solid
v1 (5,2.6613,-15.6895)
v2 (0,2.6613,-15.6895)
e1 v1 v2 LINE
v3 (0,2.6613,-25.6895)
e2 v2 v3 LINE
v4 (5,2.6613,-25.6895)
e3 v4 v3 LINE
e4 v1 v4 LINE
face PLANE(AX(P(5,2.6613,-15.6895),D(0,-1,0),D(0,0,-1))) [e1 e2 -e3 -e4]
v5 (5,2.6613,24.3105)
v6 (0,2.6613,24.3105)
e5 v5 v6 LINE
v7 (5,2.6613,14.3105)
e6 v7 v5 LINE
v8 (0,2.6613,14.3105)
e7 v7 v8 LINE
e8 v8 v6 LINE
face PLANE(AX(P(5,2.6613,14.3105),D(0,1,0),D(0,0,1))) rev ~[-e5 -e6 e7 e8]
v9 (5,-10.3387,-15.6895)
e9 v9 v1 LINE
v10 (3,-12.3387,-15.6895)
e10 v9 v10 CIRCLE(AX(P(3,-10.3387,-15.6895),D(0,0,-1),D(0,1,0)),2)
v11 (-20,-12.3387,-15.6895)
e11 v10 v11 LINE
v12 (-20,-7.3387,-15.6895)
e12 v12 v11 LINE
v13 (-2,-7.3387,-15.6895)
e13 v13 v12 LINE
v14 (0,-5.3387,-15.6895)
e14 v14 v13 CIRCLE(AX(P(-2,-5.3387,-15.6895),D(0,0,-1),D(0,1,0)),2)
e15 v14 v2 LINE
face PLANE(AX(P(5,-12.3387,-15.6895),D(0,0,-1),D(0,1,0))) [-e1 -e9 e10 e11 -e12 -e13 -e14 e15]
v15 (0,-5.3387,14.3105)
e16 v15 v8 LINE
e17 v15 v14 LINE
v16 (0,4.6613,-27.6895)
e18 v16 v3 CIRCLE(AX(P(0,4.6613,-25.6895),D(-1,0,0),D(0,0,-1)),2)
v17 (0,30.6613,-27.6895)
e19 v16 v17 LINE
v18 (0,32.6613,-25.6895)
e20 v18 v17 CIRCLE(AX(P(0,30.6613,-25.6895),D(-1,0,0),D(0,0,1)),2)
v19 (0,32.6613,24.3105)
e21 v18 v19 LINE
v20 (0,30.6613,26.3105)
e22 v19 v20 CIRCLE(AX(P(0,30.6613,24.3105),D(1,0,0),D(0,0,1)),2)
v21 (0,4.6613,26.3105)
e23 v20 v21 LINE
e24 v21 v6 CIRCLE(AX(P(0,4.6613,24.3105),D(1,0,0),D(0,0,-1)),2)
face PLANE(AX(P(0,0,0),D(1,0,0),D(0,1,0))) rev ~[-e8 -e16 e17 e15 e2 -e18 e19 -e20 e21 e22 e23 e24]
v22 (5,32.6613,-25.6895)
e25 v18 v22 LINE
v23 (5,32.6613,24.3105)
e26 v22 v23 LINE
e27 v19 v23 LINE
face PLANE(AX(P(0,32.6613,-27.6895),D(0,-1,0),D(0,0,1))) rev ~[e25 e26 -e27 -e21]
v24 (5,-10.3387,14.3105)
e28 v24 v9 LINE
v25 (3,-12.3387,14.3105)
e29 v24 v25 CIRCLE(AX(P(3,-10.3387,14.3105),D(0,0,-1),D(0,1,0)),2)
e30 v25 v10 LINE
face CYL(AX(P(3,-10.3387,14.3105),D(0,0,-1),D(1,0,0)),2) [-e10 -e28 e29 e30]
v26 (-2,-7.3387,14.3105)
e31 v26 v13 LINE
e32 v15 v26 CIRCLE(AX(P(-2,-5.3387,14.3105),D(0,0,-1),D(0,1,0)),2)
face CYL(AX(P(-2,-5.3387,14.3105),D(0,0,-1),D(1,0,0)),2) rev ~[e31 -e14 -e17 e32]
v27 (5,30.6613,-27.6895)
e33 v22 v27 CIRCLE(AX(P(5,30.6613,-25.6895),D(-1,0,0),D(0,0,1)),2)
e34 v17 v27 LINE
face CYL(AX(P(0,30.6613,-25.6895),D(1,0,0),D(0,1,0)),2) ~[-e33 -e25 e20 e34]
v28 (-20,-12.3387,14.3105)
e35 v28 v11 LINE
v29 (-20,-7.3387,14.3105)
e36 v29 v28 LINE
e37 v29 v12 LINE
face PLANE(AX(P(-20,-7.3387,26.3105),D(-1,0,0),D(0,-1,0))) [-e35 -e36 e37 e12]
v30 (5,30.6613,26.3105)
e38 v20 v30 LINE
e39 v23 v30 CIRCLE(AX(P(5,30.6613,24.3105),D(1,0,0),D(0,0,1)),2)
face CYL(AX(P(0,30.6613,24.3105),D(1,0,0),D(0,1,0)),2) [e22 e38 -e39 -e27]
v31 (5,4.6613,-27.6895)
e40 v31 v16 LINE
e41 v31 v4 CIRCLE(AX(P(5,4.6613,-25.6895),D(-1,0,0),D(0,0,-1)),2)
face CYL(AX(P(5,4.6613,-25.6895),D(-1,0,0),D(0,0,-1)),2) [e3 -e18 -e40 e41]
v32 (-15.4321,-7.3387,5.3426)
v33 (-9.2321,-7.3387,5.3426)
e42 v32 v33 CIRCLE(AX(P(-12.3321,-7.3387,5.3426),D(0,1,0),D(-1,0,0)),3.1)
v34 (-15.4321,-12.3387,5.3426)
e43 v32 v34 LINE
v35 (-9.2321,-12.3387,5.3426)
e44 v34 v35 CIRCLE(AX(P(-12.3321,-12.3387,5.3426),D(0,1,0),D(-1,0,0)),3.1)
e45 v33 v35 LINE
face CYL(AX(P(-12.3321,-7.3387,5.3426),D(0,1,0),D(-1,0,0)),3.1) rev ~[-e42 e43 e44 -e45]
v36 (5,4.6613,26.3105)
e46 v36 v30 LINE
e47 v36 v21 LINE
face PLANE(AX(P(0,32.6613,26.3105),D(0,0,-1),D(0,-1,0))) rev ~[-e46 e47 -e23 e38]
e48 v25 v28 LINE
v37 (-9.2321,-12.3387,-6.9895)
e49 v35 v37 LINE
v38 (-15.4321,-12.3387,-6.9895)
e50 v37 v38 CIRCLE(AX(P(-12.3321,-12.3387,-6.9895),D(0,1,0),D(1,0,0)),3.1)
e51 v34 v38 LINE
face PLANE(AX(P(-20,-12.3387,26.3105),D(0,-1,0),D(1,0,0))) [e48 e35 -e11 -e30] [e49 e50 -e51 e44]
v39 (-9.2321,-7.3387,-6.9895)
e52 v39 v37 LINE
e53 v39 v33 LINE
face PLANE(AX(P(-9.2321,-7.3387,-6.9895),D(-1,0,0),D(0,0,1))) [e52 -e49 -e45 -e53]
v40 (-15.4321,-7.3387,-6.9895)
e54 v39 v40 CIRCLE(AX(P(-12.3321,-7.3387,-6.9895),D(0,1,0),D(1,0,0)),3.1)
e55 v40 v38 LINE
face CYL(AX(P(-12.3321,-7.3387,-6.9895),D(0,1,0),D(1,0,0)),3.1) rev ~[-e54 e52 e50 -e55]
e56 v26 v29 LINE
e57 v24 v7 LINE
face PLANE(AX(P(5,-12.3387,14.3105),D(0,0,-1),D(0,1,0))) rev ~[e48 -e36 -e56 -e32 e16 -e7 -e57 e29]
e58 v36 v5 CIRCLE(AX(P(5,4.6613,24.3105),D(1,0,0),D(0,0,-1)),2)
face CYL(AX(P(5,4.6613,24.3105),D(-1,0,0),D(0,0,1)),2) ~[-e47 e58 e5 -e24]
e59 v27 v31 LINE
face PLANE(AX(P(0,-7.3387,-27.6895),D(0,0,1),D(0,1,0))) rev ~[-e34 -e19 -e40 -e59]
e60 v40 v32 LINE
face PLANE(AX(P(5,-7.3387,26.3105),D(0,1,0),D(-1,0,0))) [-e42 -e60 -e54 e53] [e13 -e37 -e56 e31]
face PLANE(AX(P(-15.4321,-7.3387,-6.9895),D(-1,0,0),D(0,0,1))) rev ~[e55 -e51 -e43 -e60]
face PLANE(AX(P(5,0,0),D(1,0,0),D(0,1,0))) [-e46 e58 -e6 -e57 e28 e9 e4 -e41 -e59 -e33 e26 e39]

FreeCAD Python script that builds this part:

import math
import FreeCAD as App
import Part
import Sketcher
Q = App.Units.Quantity


def edges_at(feature, points):
    """Names of the edges that pass closest to the given points."""
    edges = feature.Shape.Edges
    near = lambda p: min(range(len(edges)), key=lambda i: edges[i].distToShape(Part.Vertex(*p))[0])
    return sorted({f"Edge{near(p) + 1}" for p in points})

doc = App.newDocument("Part")
body = doc.addObject("PartDesign::Body", "Body")

# Sketch on YZ plane
sketch1 = doc.addObject("Sketcher::SketchObject", "Sketch")
body.addObject(sketch1)
sketch1.AttachmentSupport = (doc.YZ_Plane, [""])
sketch1.MapMode = "FlatFace"
sketch1.addGeometry(Part.LineSegment(App.Vector(32.6613, -27.6895, 0), App.Vector(32.6613, 26.3105, 0)), False)
sketch1.addGeometry(Part.LineSegment(App.Vector(32.6613, 26.3105, 0), App.Vector(-7.3387, 26.3105, 0)), False)
sketch1.addGeometry(Part.LineSegment(App.Vector(-7.3387, 26.3105, 0), App.Vector(-7.3387, -27.6895, 0)), False)
sketch1.addGeometry(Part.LineSegment(App.Vector(-7.3387, -27.6895, 0), App.Vector(32.6613, -27.6895, 0)), False)
sketch1.addConstraint(Sketcher.Constraint("Coincident", 0, 2, 1, 1))
sketch1.addConstraint(Sketcher.Constraint("Coincident", 1, 2, 2, 1))
sketch1.addConstraint(Sketcher.Constraint("Coincident", 2, 2, 3, 1))
sketch1.addConstraint(Sketcher.Constraint("Coincident", 3, 2, 0, 1))
sketch1.addConstraint(Sketcher.Constraint("Vertical", 0))
sketch1.addConstraint(Sketcher.Constraint("Horizontal", 1))
sketch1.addConstraint(Sketcher.Constraint("Vertical", 2))
sketch1.addConstraint(Sketcher.Constraint("Horizontal", 3))
sketch1.addConstraint(Sketcher.Constraint("DistanceX", 1, 2, 1, 1, Q("40 mm")))
sketch1.addConstraint(Sketcher.Constraint("DistanceY", 0, 1, 0, 2, Q("54 mm")))
sketch1.addConstraint(Sketcher.Constraint("DistanceX", -1, 1, 0, 2, Q("32.6613 mm")))
sketch1.addConstraint(Sketcher.Constraint("DistanceY", -1, 1, 0, 2, Q("26.3105 mm")))
pad1 = doc.addObject("PartDesign::Pad", "Pad")
body.addObject(pad1)
pad1.Profile = sketch1
pad1.Length = 5

# Sketch on XY plane
sketch2 = doc.addObject("Sketcher::SketchObject", "Sketch001")
body.addObject(sketch2)
sketch2.AttachmentSupport = (doc.XY_Plane, [""])
sketch2.MapMode = "FlatFace"
sketch2.AttachmentOffset = App.Placement(App.Vector(0, 0, 26.3105), App.Rotation())
sketch2.addGeometry(Part.LineSegment(App.Vector(5, -12.3387, 0), App.Vector(5, -7.3387, 0)), False)
sketch2.addGeometry(Part.LineSegment(App.Vector(5, -7.3387, 0), App.Vector(-20, -7.3387, 0)), False)
sketch2.addGeometry(Part.LineSegment(App.Vector(-20, -7.3387, 0), App.Vector(-20, -12.3387, 0)), False)
sketch2.addGeometry(Part.LineSegment(App.Vector(-20, -12.3387, 0), App.Vector(5, -12.3387, 0)), False)
sketch2.addConstraint(Sketcher.Constraint("Coincident", 0, 2, 1, 1))
sketch2.addConstraint(Sketcher.Constraint("Coincident", 1, 2, 2, 1))
sketch2.addConstraint(Sketcher.Constraint("Coincident", 2, 2, 3, 1))
sketch2.addConstraint(Sketcher.Constraint("Coincident", 3, 2, 0, 1))
sketch2.addConstraint(Sketcher.Constraint("Vertical", 0))
sketch2.addConstraint(Sketcher.Constraint("Horizontal", 1))
sketch2.addConstraint(Sketcher.Constraint("Vertical", 2))
sketch2.addConstraint(Sketcher.Constraint("Horizontal", 3))
sketch2.addConstraint(Sketcher.Constraint("DistanceX", 1, 2, 1, 1, Q("25 mm")))
sketch2.addConstraint(Sketcher.Constraint("DistanceY", 0, 1, 0, 2, Q("5 mm")))
sketch2.addConstraint(Sketcher.Constraint("DistanceX", -1, 1, 0, 2, Q("5 mm")))
sketch2.addConstraint(Sketcher.Constraint("DistanceY", 0, 2, -1, 1, Q("7.3387 mm")))
pad2 = doc.addObject("PartDesign::Pad", "Pad001")
body.addObject(pad2)
pad2.Profile = sketch2
pad2.Length = 54
pad2.Reversed = True

# Sketch on YZ plane
sketch3 = doc.addObject("Sketcher::SketchObject", "Sketch002")
body.addObject(sketch3)
sketch3.AttachmentSupport = (doc.YZ_Plane, [""])
sketch3.MapMode = "FlatFace"
sketch3.AttachmentOffset = App.Placement(App.Vector(0, 0, 5), App.Rotation())
sketch3.addGeometry(Part.LineSegment(App.Vector(2.6613, 14.3105, 0), App.Vector(2.6613, 26.3105, 0)), False)
sketch3.addGeometry(Part.LineSegment(App.Vector(2.6613, 26.3105, 0), App.Vector(-12.3387, 26.3105, 0)), False)
sketch3.addGeometry(Part.LineSegment(App.Vector(-12.3387, 26.3105, 0), App.Vector(-12.3387, 14.3105, 0)), False)
sketch3.addGeometry(Part.LineSegment(App.Vector(-12.3387, 14.3105, 0), App.Vector(2.6613, 14.3105, 0)), False)
sketch3.addGeometry(Part.LineSegment(App.Vector(2.6613, -15.6895, 0), App.Vector(-12.3387, -15.6895, 0)), False)
sketch3.addGeometry(Part.LineSegment(App.Vector(-12.3387, -15.6895, 0), App.Vector(-12.3387, -27.6895, 0)), False)
sketch3.addGeometry(Part.LineSegment(App.Vector(-12.3387, -27.6895, 0), App.Vector(2.6613, -27.6895, 0)), False)
sketch3.addGeometry(Part.LineSegment(App.Vector(2.6613, -27.6895, 0), App.Vector(2.6613, -15.6895, 0)), False)
sketch3.addConstraint(Sketcher.Constraint("Coincident", 0, 2, 1, 1))
sketch3.addConstraint(Sketcher.Constraint("Coincident", 1, 2, 2, 1))
sketch3.addConstraint(Sketcher.Constraint("Coincident", 2, 2, 3, 1))
sketch3.addConstraint(Sketcher.Constraint("Coincident", 3, 2, 0, 1))
sketch3.addConstraint(Sketcher.Constraint("Coincident", 4, 2, 5, 1))
sketch3.addConstraint(Sketcher.Constraint("Coincident", 5, 2, 6, 1))
sketch3.addConstraint(Sketcher.Constraint("Coincident", 6, 2, 7, 1))
sketch3.addConstraint(Sketcher.Constraint("Coincident", 7, 2, 4, 1))
sketch3.addConstraint(Sketcher.Constraint("Vertical", 0))
sketch3.addConstraint(Sketcher.Constraint("Horizontal", 1))
sketch3.addConstraint(Sketcher.Constraint("Vertical", 2))
sketch3.addConstraint(Sketcher.Constraint("Horizontal", 3))
sketch3.addConstraint(Sketcher.Constraint("Horizontal", 4))
sketch3.addConstraint(Sketcher.Constraint("Vertical", 5))
sketch3.addConstraint(Sketcher.Constraint("Horizontal", 6))
sketch3.addConstraint(Sketcher.Constraint("Vertical", 7))
sketch3.addConstraint(Sketcher.Constraint("Vertical", 2, 2, 4, 2))
sketch3.addConstraint(Sketcher.Constraint("Vertical", 3, 2, 6, 2))
sketch3.addConstraint(Sketcher.Constraint("Equal", 2, 5))
sketch3.addConstraint(Sketcher.Constraint("DistanceX", 1, 2, 1, 1, Q("15 mm")))
sketch3.addConstraint(Sketcher.Constraint("DistanceY", 0, 1, 0, 2, Q("12 mm")))
sketch3.addConstraint(Sketcher.Constraint("DistanceY", 4, 2, 2, 2, Q("30 mm")))
sketch3.addConstraint(Sketcher.Constraint("DistanceX", -1, 1, 0, 2, Q("2.6613 mm")))
sketch3.addConstraint(Sketcher.Constraint("DistanceY", -1, 1, 0, 2, Q("26.3105 mm")))
pocket1 = doc.addObject("PartDesign::Pocket", "Pocket")
body.addObject(pocket1)
pocket1.Profile = sketch3
pocket1.Type = "ThroughAll"
doc.recompute()

fillet = doc.addObject("PartDesign::Fillet", "Fillet")
body.addObject(fillet)
fillet.Base = (pocket1, edges_at(pocket1, [
    (2.5, 2.661, 26.311),
    (2.5, 2.661, -27.689),
    (2.5, 32.661, -27.689),
    (2.5, 32.661, 26.311),
]))
fillet.Radius = 2
doc.recompute()

fillet2 = doc.addObject("PartDesign::Fillet", "Fillet001")
body.addObject(fillet2)
fillet2.Base = (fillet, edges_at(fillet, [(0, -7.339, -0.69)]))
fillet2.Radius = 2

# Sketch on XZ plane
sketch4 = doc.addObject("Sketcher::SketchObject", "Sketch003")
body.addObject(sketch4)
sketch4.AttachmentSupport = (doc.XZ_Plane, [""])
sketch4.MapMode = "FlatFace"
sketch4.AttachmentOffset = App.Placement(App.Vector(0, 0, 7.3387), App.Rotation())
sketch4.addGeometry(Part.LineSegment(App.Vector(-9.2321, 5.3426, 0), App.Vector(-9.2321, -6.9895, 0)), False)
sketch4.addGeometry(Part.ArcOfCircle(Part.Circle(App.Vector(-12.3321, -6.9895, 0), App.Vector(0, 0, 1), 3.1), math.radians(180), math.radians(360)), False)
sketch4.addGeometry(Part.LineSegment(App.Vector(-15.4321, -6.9895, 0), App.Vector(-15.4321, 5.3426, 0)), False)
sketch4.addGeometry(Part.ArcOfCircle(Part.Circle(App.Vector(-12.3321, 5.3426, 0), App.Vector(0, 0, 1), 3.1), math.radians(0), math.radians(180)), False)
sketch4.addConstraint(Sketcher.Constraint("Tangent", 0, 2, 1, 2))
sketch4.addConstraint(Sketcher.Constraint("Tangent", 1, 1, 2, 1))
sketch4.addConstraint(Sketcher.Constraint("Tangent", 2, 2, 3, 2))
sketch4.addConstraint(Sketcher.Constraint("Tangent", 3, 1, 0, 1))
sketch4.addConstraint(Sketcher.Constraint("Vertical", 0))
sketch4.addConstraint(Sketcher.Constraint("Vertical", 2))
sketch4.addConstraint(Sketcher.Constraint("Radius", 1, Q("3.1 mm")))
sketch4.addConstraint(Sketcher.Constraint("DistanceY", 0, 2, 0, 1, Q("12.332 mm")))
sketch4.addConstraint(Sketcher.Constraint("DistanceX", 1, 3, -1, 1, Q("12.332 mm")))
sketch4.addConstraint(Sketcher.Constraint("DistanceY", 1, 3, -1, 1, Q("6.9895 mm")))
pocket2 = doc.addObject("PartDesign::Pocket", "Pocket001")
body.addObject(pocket2)
pocket2.Profile = sketch4
pocket2.Type = "ThroughAll"
pocket2.Reversed = True
doc.recompute()

fillet3 = doc.addObject("PartDesign::Fillet", "Fillet002")
body.addObject(fillet3)
fillet3.Base = (pocket2, edges_at(pocket2, [(5, -12.339, -0.69)]))
fillet3.Radius = 2

doc.recompute()
